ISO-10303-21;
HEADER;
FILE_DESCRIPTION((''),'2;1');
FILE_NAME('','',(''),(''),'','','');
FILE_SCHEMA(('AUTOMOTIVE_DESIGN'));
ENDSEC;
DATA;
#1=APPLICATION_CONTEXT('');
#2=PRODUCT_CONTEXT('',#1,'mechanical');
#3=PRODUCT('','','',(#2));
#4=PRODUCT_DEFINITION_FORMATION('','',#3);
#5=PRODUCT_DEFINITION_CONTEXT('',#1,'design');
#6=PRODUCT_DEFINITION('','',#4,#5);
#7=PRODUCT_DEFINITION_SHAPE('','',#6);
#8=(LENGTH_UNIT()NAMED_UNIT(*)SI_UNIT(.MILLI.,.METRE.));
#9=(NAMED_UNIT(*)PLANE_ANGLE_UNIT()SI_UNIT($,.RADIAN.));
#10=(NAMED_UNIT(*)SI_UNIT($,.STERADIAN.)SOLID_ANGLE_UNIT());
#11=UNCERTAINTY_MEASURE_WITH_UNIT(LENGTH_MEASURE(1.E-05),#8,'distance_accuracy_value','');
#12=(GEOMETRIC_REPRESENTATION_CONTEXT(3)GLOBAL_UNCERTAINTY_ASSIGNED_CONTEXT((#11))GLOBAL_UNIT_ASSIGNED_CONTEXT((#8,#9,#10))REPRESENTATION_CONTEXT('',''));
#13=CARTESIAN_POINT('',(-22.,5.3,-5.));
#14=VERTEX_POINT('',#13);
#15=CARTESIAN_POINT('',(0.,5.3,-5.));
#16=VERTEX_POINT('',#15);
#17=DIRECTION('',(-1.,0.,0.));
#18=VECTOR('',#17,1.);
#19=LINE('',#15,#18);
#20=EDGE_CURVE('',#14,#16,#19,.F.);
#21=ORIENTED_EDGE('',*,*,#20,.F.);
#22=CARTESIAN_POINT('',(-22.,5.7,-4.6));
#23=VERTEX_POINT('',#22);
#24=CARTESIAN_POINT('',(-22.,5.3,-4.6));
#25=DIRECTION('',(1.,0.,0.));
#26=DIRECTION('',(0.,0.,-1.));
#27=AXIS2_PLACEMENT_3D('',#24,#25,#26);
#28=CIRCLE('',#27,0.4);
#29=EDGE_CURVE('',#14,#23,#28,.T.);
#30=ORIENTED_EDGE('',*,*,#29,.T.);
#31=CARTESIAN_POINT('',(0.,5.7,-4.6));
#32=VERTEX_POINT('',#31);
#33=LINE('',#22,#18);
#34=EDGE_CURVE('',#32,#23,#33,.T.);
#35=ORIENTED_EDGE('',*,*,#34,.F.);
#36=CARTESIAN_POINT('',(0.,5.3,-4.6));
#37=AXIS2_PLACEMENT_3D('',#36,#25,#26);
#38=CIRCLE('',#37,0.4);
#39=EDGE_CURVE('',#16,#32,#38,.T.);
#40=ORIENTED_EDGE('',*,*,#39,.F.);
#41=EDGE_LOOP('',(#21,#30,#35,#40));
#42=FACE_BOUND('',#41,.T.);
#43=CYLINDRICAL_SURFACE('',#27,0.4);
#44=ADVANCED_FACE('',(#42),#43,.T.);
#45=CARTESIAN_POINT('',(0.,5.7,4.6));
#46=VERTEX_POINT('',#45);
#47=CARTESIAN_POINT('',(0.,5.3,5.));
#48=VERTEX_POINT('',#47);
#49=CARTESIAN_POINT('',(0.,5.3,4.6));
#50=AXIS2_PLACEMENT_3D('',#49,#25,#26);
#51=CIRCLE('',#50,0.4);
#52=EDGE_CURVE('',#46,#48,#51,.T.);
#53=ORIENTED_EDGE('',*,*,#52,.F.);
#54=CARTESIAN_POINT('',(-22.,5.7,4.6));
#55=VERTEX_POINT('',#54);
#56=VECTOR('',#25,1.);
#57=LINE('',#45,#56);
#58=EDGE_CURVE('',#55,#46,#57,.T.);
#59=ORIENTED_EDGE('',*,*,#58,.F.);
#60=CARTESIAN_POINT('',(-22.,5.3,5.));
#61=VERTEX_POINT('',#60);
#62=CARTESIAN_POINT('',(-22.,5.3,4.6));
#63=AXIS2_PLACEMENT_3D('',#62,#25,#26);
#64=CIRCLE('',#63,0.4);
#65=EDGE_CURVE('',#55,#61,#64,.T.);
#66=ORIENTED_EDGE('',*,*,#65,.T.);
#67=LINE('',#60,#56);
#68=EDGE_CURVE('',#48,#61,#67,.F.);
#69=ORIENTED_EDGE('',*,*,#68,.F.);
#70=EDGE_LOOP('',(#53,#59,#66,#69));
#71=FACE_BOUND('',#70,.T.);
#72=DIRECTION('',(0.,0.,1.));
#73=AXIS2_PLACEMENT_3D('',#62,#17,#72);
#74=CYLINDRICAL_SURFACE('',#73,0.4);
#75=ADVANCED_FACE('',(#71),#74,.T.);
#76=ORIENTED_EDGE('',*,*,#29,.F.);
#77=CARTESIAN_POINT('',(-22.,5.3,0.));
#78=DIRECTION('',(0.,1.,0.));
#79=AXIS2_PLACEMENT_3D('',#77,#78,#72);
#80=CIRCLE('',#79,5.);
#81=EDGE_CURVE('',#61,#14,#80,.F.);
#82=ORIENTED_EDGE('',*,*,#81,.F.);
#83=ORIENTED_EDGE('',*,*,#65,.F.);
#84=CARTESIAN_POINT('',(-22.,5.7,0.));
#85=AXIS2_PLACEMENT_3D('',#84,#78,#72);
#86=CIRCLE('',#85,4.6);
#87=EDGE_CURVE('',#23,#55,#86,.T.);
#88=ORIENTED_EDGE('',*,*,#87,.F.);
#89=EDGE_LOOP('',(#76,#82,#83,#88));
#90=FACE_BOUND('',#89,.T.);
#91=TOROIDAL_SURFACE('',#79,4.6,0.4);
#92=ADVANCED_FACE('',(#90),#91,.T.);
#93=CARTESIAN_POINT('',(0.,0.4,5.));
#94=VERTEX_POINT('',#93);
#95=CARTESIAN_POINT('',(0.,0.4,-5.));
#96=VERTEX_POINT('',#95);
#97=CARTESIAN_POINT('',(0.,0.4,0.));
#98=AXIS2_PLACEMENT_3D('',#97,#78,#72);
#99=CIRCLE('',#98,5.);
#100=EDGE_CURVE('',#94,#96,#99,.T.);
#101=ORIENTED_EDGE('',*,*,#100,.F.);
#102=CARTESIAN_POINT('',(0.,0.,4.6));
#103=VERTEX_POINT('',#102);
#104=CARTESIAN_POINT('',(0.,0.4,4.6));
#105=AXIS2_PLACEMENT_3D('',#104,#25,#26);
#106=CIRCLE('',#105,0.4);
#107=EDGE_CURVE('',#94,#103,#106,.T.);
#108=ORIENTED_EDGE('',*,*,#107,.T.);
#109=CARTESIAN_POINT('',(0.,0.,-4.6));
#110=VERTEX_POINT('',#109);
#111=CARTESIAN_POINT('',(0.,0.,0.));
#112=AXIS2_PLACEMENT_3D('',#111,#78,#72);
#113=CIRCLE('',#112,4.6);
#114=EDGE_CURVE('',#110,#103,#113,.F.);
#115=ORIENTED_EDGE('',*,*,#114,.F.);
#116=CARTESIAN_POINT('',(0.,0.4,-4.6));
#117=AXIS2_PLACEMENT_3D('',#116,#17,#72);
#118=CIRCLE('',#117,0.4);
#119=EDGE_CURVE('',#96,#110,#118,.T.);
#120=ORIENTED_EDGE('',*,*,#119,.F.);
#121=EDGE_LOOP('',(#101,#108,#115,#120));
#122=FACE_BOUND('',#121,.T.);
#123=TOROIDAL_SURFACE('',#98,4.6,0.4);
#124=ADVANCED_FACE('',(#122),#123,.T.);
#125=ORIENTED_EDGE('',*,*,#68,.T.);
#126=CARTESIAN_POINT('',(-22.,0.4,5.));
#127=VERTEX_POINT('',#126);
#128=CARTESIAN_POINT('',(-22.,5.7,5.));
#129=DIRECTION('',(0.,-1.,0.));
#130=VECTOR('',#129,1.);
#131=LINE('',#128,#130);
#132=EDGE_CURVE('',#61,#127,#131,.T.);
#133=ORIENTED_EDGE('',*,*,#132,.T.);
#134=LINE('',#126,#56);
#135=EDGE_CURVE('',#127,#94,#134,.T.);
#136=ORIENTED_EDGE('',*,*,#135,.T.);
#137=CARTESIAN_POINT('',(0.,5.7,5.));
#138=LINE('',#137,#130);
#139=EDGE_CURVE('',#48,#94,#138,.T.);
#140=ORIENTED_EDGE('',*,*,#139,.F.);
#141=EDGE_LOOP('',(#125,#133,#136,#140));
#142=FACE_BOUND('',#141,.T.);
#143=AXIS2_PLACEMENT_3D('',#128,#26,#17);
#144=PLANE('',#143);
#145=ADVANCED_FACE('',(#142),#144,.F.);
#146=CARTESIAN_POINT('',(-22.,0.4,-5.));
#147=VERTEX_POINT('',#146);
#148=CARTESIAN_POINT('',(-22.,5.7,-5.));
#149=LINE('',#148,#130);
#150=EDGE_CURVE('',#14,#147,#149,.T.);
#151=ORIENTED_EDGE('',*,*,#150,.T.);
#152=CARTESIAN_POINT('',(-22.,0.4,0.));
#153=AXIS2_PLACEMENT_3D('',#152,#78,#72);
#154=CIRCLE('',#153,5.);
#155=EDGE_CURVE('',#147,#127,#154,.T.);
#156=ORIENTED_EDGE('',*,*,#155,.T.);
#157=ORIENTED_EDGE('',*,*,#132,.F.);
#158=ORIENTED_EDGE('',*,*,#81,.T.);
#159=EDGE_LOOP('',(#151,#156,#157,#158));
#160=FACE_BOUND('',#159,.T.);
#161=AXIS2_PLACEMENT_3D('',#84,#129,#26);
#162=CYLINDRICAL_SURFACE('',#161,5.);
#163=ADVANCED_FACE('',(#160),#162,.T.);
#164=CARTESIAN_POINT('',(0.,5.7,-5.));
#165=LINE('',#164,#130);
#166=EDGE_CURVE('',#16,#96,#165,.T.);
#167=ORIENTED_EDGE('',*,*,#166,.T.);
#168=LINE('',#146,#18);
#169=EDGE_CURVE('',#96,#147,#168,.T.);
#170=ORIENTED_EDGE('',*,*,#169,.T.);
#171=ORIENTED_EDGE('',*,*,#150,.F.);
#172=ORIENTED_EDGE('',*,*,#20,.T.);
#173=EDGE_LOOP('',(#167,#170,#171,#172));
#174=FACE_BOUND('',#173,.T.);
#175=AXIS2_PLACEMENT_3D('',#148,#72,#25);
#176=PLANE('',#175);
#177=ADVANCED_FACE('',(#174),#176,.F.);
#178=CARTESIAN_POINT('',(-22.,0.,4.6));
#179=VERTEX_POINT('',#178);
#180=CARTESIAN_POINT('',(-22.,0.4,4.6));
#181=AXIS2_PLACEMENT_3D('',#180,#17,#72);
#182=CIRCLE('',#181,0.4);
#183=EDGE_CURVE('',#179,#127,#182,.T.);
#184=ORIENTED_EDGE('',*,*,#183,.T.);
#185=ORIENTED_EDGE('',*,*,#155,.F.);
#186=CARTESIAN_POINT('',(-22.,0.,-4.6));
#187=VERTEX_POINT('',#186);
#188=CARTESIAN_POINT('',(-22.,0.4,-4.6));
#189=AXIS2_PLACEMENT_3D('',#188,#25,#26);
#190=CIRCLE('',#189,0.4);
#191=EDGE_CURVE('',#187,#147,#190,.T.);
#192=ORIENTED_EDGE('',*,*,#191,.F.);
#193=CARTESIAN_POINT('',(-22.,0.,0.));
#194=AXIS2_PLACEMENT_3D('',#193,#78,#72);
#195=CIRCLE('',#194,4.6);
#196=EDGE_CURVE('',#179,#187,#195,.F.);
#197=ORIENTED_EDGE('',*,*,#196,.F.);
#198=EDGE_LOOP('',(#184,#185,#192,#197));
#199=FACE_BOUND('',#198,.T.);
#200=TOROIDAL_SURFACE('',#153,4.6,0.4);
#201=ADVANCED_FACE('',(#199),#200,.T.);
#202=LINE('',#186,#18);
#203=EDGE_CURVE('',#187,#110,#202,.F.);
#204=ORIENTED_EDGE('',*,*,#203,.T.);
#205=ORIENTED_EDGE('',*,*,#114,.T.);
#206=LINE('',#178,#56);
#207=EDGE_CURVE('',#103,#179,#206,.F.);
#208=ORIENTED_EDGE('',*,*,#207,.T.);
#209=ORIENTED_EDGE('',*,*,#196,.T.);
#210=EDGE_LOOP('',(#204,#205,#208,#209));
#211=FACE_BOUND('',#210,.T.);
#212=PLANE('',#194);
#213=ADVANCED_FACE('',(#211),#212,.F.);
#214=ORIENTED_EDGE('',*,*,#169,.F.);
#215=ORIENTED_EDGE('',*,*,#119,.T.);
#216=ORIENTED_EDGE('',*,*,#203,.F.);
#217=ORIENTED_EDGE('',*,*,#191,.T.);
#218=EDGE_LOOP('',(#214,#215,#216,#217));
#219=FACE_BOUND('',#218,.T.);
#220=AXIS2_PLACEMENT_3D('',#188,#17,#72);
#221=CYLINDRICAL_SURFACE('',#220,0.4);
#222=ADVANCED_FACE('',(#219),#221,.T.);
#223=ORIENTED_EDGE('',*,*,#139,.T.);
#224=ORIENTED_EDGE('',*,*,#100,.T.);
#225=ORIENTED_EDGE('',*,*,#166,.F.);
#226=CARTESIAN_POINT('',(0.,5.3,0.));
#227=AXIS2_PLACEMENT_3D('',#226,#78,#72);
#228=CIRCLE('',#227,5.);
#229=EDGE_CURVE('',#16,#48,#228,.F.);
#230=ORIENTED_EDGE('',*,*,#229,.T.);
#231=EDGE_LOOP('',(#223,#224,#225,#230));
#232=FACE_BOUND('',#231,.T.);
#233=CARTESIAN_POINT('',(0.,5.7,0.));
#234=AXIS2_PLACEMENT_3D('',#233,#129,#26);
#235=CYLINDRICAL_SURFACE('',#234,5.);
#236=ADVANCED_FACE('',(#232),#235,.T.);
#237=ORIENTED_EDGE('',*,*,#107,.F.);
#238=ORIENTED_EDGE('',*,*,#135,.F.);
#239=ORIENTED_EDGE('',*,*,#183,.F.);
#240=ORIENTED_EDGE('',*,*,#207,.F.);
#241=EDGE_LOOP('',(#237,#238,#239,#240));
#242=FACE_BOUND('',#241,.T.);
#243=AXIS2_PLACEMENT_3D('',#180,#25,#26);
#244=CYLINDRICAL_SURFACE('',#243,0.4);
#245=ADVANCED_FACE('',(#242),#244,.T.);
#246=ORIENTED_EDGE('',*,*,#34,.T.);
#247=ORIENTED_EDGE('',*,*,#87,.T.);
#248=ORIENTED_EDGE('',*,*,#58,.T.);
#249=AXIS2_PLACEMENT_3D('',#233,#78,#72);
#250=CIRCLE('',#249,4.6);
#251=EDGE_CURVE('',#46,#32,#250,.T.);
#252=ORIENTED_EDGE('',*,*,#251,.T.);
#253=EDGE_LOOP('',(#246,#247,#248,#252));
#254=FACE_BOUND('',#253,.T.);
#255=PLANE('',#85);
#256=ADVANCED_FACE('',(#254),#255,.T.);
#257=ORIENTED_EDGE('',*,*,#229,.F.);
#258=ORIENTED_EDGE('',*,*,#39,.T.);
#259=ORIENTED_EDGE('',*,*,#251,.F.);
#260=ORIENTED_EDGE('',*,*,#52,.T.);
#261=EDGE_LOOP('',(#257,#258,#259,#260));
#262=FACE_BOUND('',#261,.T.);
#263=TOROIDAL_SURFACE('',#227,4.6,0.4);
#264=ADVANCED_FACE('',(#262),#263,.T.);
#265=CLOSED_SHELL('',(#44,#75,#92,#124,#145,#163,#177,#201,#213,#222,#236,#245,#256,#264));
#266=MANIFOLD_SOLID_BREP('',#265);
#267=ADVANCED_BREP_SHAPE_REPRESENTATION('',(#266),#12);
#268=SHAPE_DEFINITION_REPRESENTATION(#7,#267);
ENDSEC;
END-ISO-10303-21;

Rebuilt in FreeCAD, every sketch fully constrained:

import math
import FreeCAD as App
import Part
import Sketcher
from FreeCAD import Vector


def edges_at(feature, points):
    """Names of the edges that pass closest to the given points."""
    edges = feature.Shape.Edges
    near = lambda p: min(range(len(edges)), key=lambda i: edges[i].distToShape(Part.Vertex(*p))[0])
    return sorted({f"Edge{near(p) + 1}" for p in points})

doc = App.newDocument("Part")
body = doc.addObject("PartDesign::Body", "Body")

# Sketch on XZ plane
sketch1 = body.newObject("Sketcher::SketchObject", "Sketch")
sketch1.AttachmentSupport = (doc.getObject("XZ_Plane"), [""])
sketch1.MapMode = "FlatFace"
sketch1.addGeometry(Part.LineSegment(Vector(0, -5, 0), Vector(-22, -5, 0)), False)
sketch1.addGeometry(Part.ArcOfCircle(Part.Circle(Vector(-22, 0, 0), Vector(0, 0, 1), 5), math.radians(90), math.radians(270)), False)
sketch1.addGeometry(Part.LineSegment(Vector(-22, 5, 0), Vector(0, 5, 0)), False)
sketch1.addGeometry(Part.ArcOfCircle(Part.Circle(Vector(0, 0, 0), Vector(0, 0, 1), 5), math.radians(-90), math.radians(90)), False)
sketch1.addConstraint(Sketcher.Constraint("Tangent", 0, 2, 1, 2))
sketch1.addConstraint(Sketcher.Constraint("Tangent", 1, 1, 2, 1))
sketch1.addConstraint(Sketcher.Constraint("Tangent", 2, 2, 3, 2))
sketch1.addConstraint(Sketcher.Constraint("Tangent", 3, 1, 0, 1))
sketch1.addConstraint(Sketcher.Constraint("Horizontal", 0))
sketch1.addConstraint(Sketcher.Constraint("Horizontal", 2))
sketch1.addConstraint(Sketcher.Constraint("Coincident", 3, 3, -1, 1))
sketch1.addConstraint(Sketcher.Constraint("Radius", 1, 5.0))
sketch1.addConstraint(Sketcher.Constraint("DistanceX", 0, 2, 0, 1, 22.0))
pad1 = body.newObject("PartDesign::Pad", "Pad")
pad1.Profile = sketch1
pad1.Length = 5.7
pad1.Reversed = True
doc.recompute()

fillet = body.newObject("PartDesign::Fillet", "Fillet")
fillet.Base = (pad1, edges_at(pad1, [
    (5, 5.7, 0),
    (-11, 5.7, -5),
    (-27, 5.7, 0),
    (-11, 0, -5),
    (5, 0, 0),
    (-11, 0, 5),
    (-27, 0, 0),
    (-11, 5.7, 5),
]))
fillet.Radius = 0.4

doc.recompute()
